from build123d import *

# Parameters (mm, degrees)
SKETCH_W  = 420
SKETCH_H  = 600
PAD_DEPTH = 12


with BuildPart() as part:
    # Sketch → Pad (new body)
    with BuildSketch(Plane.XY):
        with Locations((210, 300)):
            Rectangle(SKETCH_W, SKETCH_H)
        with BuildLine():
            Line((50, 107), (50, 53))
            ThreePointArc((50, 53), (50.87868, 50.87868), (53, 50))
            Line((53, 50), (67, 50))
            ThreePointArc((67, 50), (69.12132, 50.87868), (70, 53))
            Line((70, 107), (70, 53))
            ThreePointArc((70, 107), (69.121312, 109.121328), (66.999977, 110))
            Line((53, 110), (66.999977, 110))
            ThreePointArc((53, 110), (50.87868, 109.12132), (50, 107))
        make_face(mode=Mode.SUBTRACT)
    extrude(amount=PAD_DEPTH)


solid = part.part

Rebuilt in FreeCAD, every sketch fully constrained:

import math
import FreeCAD as App
import Part
import Sketcher
from FreeCAD import Vector
Q = App.Units.Quantity


def add_polygon(sketch, points):
    """Adds a closed chain of lines whose ends are joined by coincident constraints."""
    first, n = sketch.GeometryCount, len(points)
    for a, b in zip(points, points[1:] + points[:1]):
        sketch.addGeometry(Part.LineSegment(App.Vector(*a, 0), App.Vector(*b, 0)), False)
    for i in range(n):
        sketch.addConstraint(Sketcher.Constraint("Coincident", first + i, 2, first + (i + 1) % n, 1))

doc = App.newDocument("Part")
params = doc.addObject("Spreadsheet::Sheet", "Params")
for row, (alias, value) in enumerate([
    ("sketch1_radius", "3.000001 mm"),
    ("sketch1_width", "420 mm"),
    ("sketch1_width2", "14 mm"),
    ("sketch1_height", "600 mm"),
    ("sketch1_height2", "54 mm"),
    ("pad1_length", "12 mm"),
], start=1):
    params.set(f"A{row}", alias)
    params.set(f"B{row}", "=" + value)
    params.setAlias(f"B{row}", alias)

body = doc.addObject("PartDesign::Body", "Body")

sketch1 = body.newObject("Sketcher::SketchObject", "Sketch")
sketch1.AttachmentSupport = (doc.getObject("XY_Plane"), [""])
sketch1.MapMode = "FlatFace"
add_polygon(sketch1, [(0, 600), (0, 0), (420, 0), (420, 600)])
sketch1.addGeometry(Part.LineSegment(Vector(50, 53, 0), Vector(50, 107, 0)), False)
sketch1.addGeometry(Part.ArcOfCircle(Part.Circle(Vector(53.000001, 106.999999, 0), Vector(0, 0, 1), 3.000001), math.radians(90.000022), math.radians(179.999978)), False)
sketch1.addGeometry(Part.LineSegment(Vector(53, 110, 0), Vector(66.999977, 110, 0)), False)
sketch1.addGeometry(Part.ArcOfCircle(Part.Circle(Vector(66.999999, 106.999999, 0), Vector(0, 0, 1), 3.000001), math.radians(0.000022), math.radians(90.000417)), False)
sketch1.addGeometry(Part.LineSegment(Vector(70, 107, 0), Vector(70, 53, 0)), False)
sketch1.addGeometry(Part.ArcOfCircle(Part.Circle(Vector(66.999999, 53.000001, 0), Vector(0, 0, 1), 3.000001), math.radians(-89.999978), math.radians(-0.000022)), False)
sketch1.addGeometry(Part.LineSegment(Vector(67, 50, 0), Vector(53, 50, 0)), False)
sketch1.addGeometry(Part.ArcOfCircle(Part.Circle(Vector(53.000001, 53.000001, 0), Vector(0, 0, 1), 3.000001), math.radians(-179.999978), math.radians(-90.000022)), False)
sketch1.addConstraint([
    Sketcher.Constraint("Tangent", 4, 2, 5, 2),
    Sketcher.Constraint("Tangent", 5, 1, 6, 1),
    Sketcher.Constraint("Coincident", 6, 2, 7, 2),
    Sketcher.Constraint("Tangent", 7, 1, 8, 1),
    Sketcher.Constraint("Tangent", 8, 2, 9, 2),
    Sketcher.Constraint("Tangent", 9, 1, 10, 1),
    Sketcher.Constraint("Tangent", 10, 2, 11, 2),
    Sketcher.Constraint("Tangent", 11, 1, 4, 1),
    Sketcher.Constraint("Vertical", 0),
    Sketcher.Constraint("Horizontal", 1),
    Sketcher.Constraint("Vertical", 2),
    Sketcher.Constraint("Horizontal", 3),
    Sketcher.Constraint("Vertical", 4),
    Sketcher.Constraint("Horizontal", 6),
    Sketcher.Constraint("Vertical", 8),
    Sketcher.Constraint("Horizontal", 10),
    Sketcher.Constraint("Coincident", 0, 2, -1, 1),
    Sketcher.Constraint("Equal", 5, 7),
    Sketcher.Constraint("Equal", 7, 9),
    Sketcher.Constraint("Equal", 9, 11),
    Sketcher.Constraint("Radius", 5, Q("3.000001 mm")),
    Sketcher.Constraint("DistanceX", 1, 1, 1, 2, Q("420 mm")),
    Sketcher.Constraint("DistanceX", 10, 2, 10, 1, Q("14 mm")),
    Sketcher.Constraint("DistanceY", 0, 2, 0, 1, Q("600 mm")),
    Sketcher.Constraint("DistanceY", 4, 1, 4, 2, Q("54 mm")),
    Sketcher.Constraint("DistanceX", -1, 1, 5, 3, Q("53.000001 mm")),
    Sketcher.Constraint("DistanceY", -1, 1, 5, 3, Q("106.999999 mm")),
    Sketcher.Constraint("DistanceX", 6, 1, 6, 2, Q("13.999977 mm")),
])
sketch1.setExpression("Constraints[24]", "Params.sketch1_radius")
sketch1.setExpression("Constraints[25]", "Params.sketch1_width")
sketch1.setExpression("Constraints[26]", "Params.sketch1_width2")
sketch1.setExpression("Constraints[27]", "Params.sketch1_height")
sketch1.setExpression("Constraints[28]", "Params.sketch1_height2")
pad1 = body.newObject("PartDesign::Pad", "Pad")
pad1.Profile = sketch1
pad1.setExpression("Length", "Params.pad1_length")

doc.recompute()
